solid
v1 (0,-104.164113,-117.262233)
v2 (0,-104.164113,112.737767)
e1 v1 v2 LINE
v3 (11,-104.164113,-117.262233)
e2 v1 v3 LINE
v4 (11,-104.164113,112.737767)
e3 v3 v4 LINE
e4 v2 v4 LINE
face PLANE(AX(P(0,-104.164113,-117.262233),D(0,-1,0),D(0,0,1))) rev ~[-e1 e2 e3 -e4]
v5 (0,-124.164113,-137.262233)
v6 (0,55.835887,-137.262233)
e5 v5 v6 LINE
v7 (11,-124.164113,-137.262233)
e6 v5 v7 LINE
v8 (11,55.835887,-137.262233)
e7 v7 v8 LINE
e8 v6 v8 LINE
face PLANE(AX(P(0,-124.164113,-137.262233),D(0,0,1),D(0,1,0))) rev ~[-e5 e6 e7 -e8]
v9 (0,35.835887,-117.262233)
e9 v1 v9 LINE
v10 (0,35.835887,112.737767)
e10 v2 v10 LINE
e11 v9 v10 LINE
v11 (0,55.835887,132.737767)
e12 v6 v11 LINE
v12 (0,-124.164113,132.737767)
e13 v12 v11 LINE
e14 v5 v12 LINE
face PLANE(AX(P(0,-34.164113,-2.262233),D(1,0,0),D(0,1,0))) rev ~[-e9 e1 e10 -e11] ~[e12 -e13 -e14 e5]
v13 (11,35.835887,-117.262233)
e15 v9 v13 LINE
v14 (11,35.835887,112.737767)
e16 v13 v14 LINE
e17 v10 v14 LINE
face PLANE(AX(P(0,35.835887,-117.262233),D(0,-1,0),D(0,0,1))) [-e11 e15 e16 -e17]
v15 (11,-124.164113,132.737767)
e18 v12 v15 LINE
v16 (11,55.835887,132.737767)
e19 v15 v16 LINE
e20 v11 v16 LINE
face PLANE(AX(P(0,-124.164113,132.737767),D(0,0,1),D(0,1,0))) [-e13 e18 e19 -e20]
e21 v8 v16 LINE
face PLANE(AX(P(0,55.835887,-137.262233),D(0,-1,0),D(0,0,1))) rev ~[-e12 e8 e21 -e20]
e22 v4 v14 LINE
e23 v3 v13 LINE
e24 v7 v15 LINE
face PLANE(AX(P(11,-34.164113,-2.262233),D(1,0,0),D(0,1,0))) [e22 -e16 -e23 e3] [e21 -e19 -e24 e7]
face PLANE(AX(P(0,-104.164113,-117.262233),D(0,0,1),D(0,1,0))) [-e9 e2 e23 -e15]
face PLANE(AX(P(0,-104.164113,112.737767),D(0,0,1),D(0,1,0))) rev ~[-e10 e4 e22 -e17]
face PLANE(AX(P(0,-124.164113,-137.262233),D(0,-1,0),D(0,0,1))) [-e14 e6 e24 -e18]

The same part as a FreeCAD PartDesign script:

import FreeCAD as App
import Part
import Sketcher
Q = App.Units.Quantity

doc = App.newDocument("Part")
params = doc.addObject("Spreadsheet::Sheet", "Params")
for row, (alias, value) in enumerate([
    ("sketch1_width", "180 mm"),
    ("sketch1_width2", "140 mm"),
    ("sketch1_height", "270 mm"),
    ("sketch1_height2", "230 mm"),
    ("pad1_length", "11 mm"),
], start=1):
    params.set(f"A{row}", alias)
    params.set(f"B{row}", "=" + value)
    params.setAlias(f"B{row}", alias)

body = doc.addObject("PartDesign::Body", "Body")

# Sketch on YZ plane
sketch1 = body.newObject("Sketcher::SketchObject", "Sketch")
sketch1.AttachmentSupport = (doc.getObject("YZ_Plane"), [""])
sketch1.MapMode = "FlatFace"
sketch1.addGeometry([
    Part.LineSegment(App.Vector(-124, 133, 0), App.Vector(-124, -137, 0)),  # 0
    Part.LineSegment(App.Vector(-124, -137, 0), App.Vector(56, -137, 0)),  # 1
    Part.LineSegment(App.Vector(56, -137, 0), App.Vector(56, 133, 0)),  # 2
    Part.LineSegment(App.Vector(56, 133, 0), App.Vector(-124, 133, 0)),  # 3
    Part.LineSegment(App.Vector(36, -117, 0), App.Vector(-104, -117, 0)),  # 4
    Part.LineSegment(App.Vector(-104, -117, 0), App.Vector(-104, 113, 0)),  # 5
    Part.LineSegment(App.Vector(-104, 113, 0), App.Vector(36, 113, 0)),  # 6
    Part.LineSegment(App.Vector(36, 113, 0), App.Vector(36, -117, 0)),  # 7
], False)
sketch1.addConstraint([
    Sketcher.Constraint("Coincident", 0, 2, 1, 1),
    Sketcher.Constraint("Coincident", 1, 2, 2, 1),
    Sketcher.Constraint("Coincident", 2, 2, 3, 1),
    Sketcher.Constraint("Coincident", 3, 2, 0, 1),
    Sketcher.Constraint("Coincident", 4, 2, 5, 1),
    Sketcher.Constraint("Coincident", 5, 2, 6, 1),
    Sketcher.Constraint("Coincident", 6, 2, 7, 1),
    Sketcher.Constraint("Coincident", 7, 2, 4, 1),
    Sketcher.Constraint("Vertical", 0),
    Sketcher.Constraint("Horizontal", 1),
    Sketcher.Constraint("Vertical", 2),
    Sketcher.Constraint("Horizontal", 3),
    Sketcher.Constraint("Horizontal", 4),
    Sketcher.Constraint("Vertical", 5),
    Sketcher.Constraint("Horizontal", 6),
    Sketcher.Constraint("Vertical", 7),
    Sketcher.Constraint("DistanceX", 1, 1, 1, 2, Q("180 mm")),
    Sketcher.Constraint("DistanceX", 4, 2, 4, 1, Q("140 mm")),
    Sketcher.Constraint("DistanceY", 0, 2, 0, 1, Q("270 mm")),
    Sketcher.Constraint("DistanceY", 5, 1, 5, 2, Q("230 mm")),
    Sketcher.Constraint("DistanceX", 0, 2, 4, 2, Q("20 mm")),
    Sketcher.Constraint("DistanceY", 0, 2, 4, 2, Q("20 mm")),
    Sketcher.Constraint("DistanceX", 0, 2, -1, 1, Q("124.164113 mm")),
    Sketcher.Constraint("DistanceY", 0, 2, -1, 1, Q("137.262233 mm")),
])
sketch1.setExpression("Constraints[16]", "Params.sketch1_width")
sketch1.setExpression("Constraints[17]", "Params.sketch1_width2")
sketch1.setExpression("Constraints[18]", "Params.sketch1_height")
sketch1.setExpression("Constraints[19]", "Params.sketch1_height2")
pad1 = body.newObject("PartDesign::Pad", "Pad")
pad1.Profile = sketch1
pad1.setExpression("Length", "Params.pad1_length")

doc.recompute()
